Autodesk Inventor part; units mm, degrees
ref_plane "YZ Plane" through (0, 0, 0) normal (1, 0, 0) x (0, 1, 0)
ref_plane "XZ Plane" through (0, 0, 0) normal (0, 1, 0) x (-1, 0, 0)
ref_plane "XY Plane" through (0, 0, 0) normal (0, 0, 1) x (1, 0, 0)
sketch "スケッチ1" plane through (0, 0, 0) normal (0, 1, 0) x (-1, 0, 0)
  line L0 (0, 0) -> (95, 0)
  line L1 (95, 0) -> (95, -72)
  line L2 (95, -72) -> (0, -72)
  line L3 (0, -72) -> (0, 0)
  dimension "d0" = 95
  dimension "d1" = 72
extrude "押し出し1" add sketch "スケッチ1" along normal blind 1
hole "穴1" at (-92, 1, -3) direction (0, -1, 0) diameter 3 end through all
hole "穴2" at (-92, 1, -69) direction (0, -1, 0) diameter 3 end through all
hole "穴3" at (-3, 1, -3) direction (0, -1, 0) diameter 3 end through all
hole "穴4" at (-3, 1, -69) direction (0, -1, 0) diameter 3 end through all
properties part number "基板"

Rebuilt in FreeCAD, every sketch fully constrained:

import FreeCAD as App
import Part
import Sketcher
Q = App.Units.Quantity

doc = App.newDocument("Part")
body = doc.addObject("PartDesign::Body", "Body")

sketch1 = body.newObject("Sketcher::SketchObject", "Sketch")
sketch1.AttachmentSupport = (doc.getObject("XZ_Plane"), [""])
sketch1.MapMode = "FlatFace"
sketch1.addGeometry([
    Part.LineSegment(App.Vector(-95, 0, 0), App.Vector(0, 0, 0)),
    Part.LineSegment(App.Vector(0, 0, 0), App.Vector(0, -72, 0)),
    Part.LineSegment(App.Vector(0, -72, 0), App.Vector(-95, -72, 0)),
    Part.LineSegment(App.Vector(-95, -72, 0), App.Vector(-95, 0, 0)),
], False)
sketch1.addConstraint([
    Sketcher.Constraint("Coincident", 0, 2, 1, 1),
    Sketcher.Constraint("Coincident", 1, 2, 2, 1),
    Sketcher.Constraint("Coincident", 2, 2, 3, 1),
    Sketcher.Constraint("Coincident", 3, 2, 0, 1),
    Sketcher.Constraint("Horizontal", 0),
    Sketcher.Constraint("Vertical", 1),
    Sketcher.Constraint("Horizontal", 2),
    Sketcher.Constraint("Vertical", 3),
    Sketcher.Constraint("Coincident", 0, 2, -1, 1),
    Sketcher.Constraint("DistanceX", 0, 1, 0, 2, Q("95 mm")),
    Sketcher.Constraint("DistanceY", 1, 2, 1, 1, Q("72 mm")),
])
pad1 = body.newObject("PartDesign::Pad", "Pad")
pad1.Profile = sketch1
pad1.Length = 1
pad1.Reversed = True

sketch2 = body.newObject("Sketcher::SketchObject", "Sketch001")
sketch2.AttachmentSupport = (doc.getObject("XZ_Plane"), [""])
sketch2.MapMode = "FlatFace"
sketch2.AttachmentOffset = App.Placement(App.Vector(0, 0, -1), App.Rotation())
sketch2.addGeometry(Part.Circle(App.Vector(-92, -3, 0), App.Vector(0, 0, 1), 1.5), False)
sketch2.addConstraint([
    Sketcher.Constraint("Diameter", 0, Q("3 mm")),
    Sketcher.Constraint("DistanceX", 0, 3, -1, 1, Q("92 mm")),
    Sketcher.Constraint("DistanceY", 0, 3, -1, 1, Q("3 mm")),
])
doc.recompute()
hole = body.newObject("PartDesign::Hole", "Hole")
hole.Profile = sketch2
hole.ThreadType = "None"
hole.Diameter = 3
hole.DepthType = "ThroughAll"
hole.Reversed = True

sketch3 = body.newObject("Sketcher::SketchObject", "Sketch002")
sketch3.AttachmentSupport = (doc.getObject("XZ_Plane"), [""])
sketch3.MapMode = "FlatFace"
sketch3.AttachmentOffset = App.Placement(App.Vector(0, 0, -1), App.Rotation())
sketch3.addGeometry(Part.Circle(App.Vector(-92, -69, 0), App.Vector(0, 0, 1), 1.5), False)
sketch3.addConstraint([
    Sketcher.Constraint("Diameter", 0, Q("3 mm")),
    Sketcher.Constraint("DistanceX", 0, 3, -1, 1, Q("92 mm")),
    Sketcher.Constraint("DistanceY", 0, 3, -1, 1, Q("69 mm")),
])
doc.recompute()
hole2 = body.newObject("PartDesign::Hole", "Hole001")
hole2.Profile = sketch3
hole2.ThreadType = "None"
hole2.Diameter = 3
hole2.DepthType = "ThroughAll"
hole2.Reversed = True

sketch4 = body.newObject("Sketcher::SketchObject", "Sketch003")
sketch4.AttachmentSupport = (doc.getObject("XZ_Plane"), [""])
sketch4.MapMode = "FlatFace"
sketch4.AttachmentOffset = App.Placement(App.Vector(0, 0, -1), App.Rotation())
sketch4.addGeometry(Part.Circle(App.Vector(-3, -3, 0), App.Vector(0, 0, 1), 1.5), False)
sketch4.addConstraint([
    Sketcher.Constraint("Diameter", 0, Q("3 mm")),
    Sketcher.Constraint("DistanceX", 0, 3, -1, 1, Q("3 mm")),
    Sketcher.Constraint("DistanceY", 0, 3, -1, 1, Q("3 mm")),
])
doc.recompute()
hole3 = body.newObject("PartDesign::Hole", "Hole002")
hole3.Profile = sketch4
hole3.ThreadType = "None"
hole3.Diameter = 3
hole3.DepthType = "ThroughAll"
hole3.Reversed = True

sketch5 = body.newObject("Sketcher::SketchObject", "Sketch004")
sketch5.AttachmentSupport = (doc.getObject("XZ_Plane"), [""])
sketch5.MapMode = "FlatFace"
sketch5.AttachmentOffset = App.Placement(App.Vector(0, 0, -1), App.Rotation())
sketch5.addGeometry(Part.Circle(App.Vector(-3, -69, 0), App.Vector(0, 0, 1), 1.5), False)
sketch5.addConstraint([
    Sketcher.Constraint("Diameter", 0, Q("3 mm")),
    Sketcher.Constraint("DistanceX", 0, 3, -1, 1, Q("3 mm")),
    Sketcher.Constraint("DistanceY", 0, 3, -1, 1, Q("69 mm")),
])
doc.recompute()
hole4 = body.newObject("PartDesign::Hole", "Hole003")
hole4.Profile = sketch5
hole4.ThreadType = "None"
hole4.Diameter = 3
hole4.DepthType = "ThroughAll"
hole4.Reversed = True

doc.recompute()
